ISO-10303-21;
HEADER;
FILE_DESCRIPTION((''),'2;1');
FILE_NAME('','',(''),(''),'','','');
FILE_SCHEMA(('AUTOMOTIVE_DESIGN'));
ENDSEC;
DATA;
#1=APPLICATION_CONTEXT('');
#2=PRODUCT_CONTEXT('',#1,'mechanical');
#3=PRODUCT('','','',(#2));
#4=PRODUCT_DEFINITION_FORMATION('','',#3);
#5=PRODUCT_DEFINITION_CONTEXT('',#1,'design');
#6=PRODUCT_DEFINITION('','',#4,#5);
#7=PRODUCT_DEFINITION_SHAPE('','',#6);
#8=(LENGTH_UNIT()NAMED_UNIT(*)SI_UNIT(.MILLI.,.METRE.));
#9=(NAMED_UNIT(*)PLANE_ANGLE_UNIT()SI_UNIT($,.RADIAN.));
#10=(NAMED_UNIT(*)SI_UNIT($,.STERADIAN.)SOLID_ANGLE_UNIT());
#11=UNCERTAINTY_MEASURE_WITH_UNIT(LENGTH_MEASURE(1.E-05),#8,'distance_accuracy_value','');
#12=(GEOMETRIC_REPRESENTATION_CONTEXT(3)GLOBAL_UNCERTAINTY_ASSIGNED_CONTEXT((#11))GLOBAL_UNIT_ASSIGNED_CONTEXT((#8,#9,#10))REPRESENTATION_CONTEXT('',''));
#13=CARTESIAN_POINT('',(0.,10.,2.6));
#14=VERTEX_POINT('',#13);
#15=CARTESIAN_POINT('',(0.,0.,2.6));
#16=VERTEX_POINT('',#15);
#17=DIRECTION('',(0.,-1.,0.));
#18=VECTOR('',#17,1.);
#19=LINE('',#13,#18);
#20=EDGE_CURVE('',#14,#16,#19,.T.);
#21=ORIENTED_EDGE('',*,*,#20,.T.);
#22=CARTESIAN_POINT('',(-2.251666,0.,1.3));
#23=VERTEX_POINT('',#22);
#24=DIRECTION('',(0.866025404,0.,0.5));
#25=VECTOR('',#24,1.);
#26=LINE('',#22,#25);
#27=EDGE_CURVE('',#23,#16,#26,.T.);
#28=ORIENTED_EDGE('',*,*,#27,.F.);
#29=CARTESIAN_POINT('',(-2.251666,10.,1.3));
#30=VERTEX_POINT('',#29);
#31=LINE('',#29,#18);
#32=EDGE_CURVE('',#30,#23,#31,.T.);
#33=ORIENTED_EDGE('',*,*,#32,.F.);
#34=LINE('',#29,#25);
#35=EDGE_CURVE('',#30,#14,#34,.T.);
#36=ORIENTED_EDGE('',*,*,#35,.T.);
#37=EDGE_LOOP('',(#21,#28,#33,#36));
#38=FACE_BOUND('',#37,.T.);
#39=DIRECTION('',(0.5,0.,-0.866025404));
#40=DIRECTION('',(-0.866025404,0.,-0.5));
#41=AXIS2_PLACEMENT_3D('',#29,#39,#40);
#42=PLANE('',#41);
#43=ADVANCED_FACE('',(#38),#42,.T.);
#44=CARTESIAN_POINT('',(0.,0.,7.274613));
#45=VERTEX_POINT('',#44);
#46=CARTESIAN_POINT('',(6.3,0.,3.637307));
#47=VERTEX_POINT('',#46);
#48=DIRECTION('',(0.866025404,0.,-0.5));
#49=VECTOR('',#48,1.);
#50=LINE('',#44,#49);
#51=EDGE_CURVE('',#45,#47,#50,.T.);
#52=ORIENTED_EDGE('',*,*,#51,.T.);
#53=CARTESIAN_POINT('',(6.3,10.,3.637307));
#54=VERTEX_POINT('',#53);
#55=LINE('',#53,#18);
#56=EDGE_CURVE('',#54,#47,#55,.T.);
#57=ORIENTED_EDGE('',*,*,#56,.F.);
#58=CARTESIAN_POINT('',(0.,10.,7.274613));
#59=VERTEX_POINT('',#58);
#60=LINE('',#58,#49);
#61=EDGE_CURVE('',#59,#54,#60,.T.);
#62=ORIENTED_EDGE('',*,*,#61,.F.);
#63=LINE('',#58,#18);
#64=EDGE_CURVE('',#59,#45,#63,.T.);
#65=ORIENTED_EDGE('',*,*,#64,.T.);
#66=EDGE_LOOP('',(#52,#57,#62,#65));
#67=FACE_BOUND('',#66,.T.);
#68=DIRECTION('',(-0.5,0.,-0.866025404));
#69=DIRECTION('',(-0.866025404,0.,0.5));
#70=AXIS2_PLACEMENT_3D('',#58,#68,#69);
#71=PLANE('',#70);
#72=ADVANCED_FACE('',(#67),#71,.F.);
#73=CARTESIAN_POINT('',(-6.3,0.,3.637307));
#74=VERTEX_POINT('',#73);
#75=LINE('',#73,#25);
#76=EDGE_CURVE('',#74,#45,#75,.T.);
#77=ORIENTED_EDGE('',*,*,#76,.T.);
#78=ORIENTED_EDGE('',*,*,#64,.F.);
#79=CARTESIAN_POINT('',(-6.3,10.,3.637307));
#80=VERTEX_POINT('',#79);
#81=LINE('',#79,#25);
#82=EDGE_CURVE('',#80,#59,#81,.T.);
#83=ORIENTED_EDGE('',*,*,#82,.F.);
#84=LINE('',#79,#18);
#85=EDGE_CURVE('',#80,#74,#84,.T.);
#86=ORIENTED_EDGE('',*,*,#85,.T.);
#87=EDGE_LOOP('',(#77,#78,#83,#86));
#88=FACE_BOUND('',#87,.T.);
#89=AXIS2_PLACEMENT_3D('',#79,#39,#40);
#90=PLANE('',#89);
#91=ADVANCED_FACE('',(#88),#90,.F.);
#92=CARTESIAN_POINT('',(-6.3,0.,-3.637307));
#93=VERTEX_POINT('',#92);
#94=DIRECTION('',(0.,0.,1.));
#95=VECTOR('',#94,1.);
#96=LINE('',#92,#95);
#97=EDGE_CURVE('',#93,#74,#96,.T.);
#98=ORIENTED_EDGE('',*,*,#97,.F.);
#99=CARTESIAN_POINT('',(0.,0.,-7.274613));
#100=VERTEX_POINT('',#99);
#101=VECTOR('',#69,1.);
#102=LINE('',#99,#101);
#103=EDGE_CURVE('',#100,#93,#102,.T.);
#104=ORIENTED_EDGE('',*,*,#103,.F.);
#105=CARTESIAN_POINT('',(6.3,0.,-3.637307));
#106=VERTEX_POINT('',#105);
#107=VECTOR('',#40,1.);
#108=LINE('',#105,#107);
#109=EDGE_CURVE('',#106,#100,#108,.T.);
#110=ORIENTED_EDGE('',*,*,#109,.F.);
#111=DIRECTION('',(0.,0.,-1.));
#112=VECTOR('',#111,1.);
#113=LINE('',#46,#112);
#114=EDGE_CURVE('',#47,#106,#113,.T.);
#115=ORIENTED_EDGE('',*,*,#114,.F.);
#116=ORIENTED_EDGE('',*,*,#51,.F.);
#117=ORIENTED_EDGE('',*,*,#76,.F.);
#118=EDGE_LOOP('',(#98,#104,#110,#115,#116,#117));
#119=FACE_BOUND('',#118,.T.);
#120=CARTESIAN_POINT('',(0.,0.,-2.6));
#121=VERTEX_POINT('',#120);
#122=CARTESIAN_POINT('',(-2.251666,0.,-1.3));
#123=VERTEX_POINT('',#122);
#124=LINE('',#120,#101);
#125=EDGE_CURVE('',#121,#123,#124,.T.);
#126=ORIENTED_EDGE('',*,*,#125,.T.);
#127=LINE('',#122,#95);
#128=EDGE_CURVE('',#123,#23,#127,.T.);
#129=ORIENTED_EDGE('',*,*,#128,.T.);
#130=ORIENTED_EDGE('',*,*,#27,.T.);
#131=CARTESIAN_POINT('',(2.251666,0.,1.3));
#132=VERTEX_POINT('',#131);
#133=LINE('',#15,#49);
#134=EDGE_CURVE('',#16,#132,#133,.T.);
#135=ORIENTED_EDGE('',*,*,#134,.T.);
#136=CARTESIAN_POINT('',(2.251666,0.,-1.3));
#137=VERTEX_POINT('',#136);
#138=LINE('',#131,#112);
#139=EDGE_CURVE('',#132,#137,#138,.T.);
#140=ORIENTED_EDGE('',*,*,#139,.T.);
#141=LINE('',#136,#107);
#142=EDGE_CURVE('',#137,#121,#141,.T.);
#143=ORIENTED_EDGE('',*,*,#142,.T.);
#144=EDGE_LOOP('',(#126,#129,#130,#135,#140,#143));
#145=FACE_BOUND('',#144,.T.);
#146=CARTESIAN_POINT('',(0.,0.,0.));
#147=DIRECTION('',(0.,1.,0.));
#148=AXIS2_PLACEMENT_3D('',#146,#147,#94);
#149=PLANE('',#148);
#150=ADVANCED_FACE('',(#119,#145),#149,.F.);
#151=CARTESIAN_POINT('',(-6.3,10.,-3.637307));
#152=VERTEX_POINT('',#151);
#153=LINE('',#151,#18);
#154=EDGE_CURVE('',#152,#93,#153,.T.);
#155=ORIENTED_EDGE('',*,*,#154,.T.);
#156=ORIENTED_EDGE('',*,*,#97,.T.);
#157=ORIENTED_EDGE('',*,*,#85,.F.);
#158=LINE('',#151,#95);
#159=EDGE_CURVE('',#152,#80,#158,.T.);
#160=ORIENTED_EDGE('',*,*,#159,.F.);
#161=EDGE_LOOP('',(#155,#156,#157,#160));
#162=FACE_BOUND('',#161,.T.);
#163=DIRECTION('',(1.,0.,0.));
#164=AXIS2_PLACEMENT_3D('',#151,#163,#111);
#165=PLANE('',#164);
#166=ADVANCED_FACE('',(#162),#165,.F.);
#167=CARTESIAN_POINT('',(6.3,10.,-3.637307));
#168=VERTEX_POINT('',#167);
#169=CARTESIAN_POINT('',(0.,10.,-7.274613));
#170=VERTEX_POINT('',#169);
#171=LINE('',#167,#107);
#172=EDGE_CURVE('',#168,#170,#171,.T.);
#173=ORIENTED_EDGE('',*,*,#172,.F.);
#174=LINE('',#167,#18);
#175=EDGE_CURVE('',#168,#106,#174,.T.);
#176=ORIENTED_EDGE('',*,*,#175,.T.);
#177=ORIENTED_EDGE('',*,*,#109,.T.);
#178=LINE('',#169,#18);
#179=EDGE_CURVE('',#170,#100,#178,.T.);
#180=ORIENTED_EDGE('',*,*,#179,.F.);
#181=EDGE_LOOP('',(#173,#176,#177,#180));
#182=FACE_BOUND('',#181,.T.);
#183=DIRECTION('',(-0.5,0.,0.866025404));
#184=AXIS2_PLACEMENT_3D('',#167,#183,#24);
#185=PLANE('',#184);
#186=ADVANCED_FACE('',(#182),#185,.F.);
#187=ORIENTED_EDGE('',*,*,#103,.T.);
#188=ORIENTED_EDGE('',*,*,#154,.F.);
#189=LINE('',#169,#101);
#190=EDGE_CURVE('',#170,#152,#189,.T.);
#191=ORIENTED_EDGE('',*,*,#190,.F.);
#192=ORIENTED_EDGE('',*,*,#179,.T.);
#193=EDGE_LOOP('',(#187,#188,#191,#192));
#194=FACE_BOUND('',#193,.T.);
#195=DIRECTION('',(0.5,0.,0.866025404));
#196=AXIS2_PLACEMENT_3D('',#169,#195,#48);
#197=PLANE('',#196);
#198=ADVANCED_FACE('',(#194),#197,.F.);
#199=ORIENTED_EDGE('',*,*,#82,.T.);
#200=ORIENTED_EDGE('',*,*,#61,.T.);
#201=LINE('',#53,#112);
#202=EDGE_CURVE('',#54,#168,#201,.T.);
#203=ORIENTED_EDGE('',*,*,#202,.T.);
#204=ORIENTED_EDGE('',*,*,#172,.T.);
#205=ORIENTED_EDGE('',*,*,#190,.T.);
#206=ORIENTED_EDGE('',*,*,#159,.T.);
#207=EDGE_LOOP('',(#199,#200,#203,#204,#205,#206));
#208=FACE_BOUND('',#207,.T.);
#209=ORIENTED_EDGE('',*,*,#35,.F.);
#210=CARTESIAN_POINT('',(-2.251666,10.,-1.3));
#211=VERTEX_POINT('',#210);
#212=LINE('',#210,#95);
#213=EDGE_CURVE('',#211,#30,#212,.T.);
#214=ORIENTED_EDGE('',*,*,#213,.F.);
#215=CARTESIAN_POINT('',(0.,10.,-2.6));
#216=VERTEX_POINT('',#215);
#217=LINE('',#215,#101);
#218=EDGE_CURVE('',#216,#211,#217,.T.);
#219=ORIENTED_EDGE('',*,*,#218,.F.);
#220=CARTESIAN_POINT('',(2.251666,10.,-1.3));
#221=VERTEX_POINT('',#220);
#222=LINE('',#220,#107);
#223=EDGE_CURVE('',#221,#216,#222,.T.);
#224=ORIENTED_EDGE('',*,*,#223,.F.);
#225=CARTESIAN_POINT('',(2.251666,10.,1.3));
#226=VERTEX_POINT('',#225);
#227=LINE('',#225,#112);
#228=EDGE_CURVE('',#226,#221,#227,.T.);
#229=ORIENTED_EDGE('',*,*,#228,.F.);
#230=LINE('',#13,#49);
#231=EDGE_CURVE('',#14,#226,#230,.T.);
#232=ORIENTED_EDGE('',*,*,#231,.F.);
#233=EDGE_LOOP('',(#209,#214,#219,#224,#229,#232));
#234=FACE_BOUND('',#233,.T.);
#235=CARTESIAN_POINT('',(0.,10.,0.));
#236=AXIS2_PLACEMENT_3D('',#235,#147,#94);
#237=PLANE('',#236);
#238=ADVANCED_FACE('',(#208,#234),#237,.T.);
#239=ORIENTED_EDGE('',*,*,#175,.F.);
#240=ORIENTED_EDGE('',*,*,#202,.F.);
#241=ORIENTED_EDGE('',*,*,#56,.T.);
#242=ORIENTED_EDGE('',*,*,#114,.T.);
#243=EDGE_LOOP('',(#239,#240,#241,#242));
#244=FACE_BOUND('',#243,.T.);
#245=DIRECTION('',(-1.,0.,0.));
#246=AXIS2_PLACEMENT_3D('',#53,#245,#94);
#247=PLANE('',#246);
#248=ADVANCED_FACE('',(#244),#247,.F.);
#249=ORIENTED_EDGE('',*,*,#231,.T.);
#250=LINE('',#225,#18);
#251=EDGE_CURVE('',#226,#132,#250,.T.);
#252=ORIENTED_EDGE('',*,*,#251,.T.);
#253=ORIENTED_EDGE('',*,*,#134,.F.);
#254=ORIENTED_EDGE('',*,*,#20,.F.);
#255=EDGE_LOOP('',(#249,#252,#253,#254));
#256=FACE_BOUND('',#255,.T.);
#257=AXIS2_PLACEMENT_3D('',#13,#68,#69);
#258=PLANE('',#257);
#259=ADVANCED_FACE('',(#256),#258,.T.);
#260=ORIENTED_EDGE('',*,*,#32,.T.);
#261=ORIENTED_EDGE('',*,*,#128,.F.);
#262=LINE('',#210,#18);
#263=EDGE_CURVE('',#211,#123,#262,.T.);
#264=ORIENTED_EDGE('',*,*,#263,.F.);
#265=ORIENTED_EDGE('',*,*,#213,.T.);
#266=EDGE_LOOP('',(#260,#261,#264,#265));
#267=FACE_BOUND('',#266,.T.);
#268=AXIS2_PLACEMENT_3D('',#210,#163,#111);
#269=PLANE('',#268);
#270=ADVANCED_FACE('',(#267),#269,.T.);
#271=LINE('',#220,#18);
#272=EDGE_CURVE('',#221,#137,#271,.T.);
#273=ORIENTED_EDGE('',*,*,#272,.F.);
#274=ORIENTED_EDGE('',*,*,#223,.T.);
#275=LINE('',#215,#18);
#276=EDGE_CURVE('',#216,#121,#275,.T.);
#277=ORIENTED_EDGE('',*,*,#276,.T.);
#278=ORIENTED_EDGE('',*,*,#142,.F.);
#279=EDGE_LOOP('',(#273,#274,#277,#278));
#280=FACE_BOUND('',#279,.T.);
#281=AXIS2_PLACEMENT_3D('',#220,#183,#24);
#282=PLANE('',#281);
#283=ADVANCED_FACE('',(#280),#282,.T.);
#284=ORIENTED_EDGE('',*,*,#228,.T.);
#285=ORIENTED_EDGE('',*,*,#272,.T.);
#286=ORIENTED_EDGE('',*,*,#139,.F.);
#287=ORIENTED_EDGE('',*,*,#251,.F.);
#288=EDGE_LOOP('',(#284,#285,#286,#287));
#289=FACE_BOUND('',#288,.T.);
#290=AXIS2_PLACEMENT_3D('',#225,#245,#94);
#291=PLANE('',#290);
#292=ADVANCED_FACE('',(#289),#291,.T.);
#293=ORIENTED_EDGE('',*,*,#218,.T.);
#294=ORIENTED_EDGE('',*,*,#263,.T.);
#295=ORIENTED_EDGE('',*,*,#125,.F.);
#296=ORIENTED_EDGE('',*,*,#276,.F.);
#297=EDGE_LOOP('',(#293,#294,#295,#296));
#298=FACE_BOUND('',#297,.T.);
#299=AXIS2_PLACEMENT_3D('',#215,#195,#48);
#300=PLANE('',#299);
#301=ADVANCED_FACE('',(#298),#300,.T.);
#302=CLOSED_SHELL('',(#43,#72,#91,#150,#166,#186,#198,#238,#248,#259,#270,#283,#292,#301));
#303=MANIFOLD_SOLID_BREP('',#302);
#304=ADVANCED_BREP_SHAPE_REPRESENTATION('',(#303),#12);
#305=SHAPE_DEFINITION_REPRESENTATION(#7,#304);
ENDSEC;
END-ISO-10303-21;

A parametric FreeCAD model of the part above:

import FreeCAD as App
import Part
import Sketcher
Q = App.Units.Quantity


def add_polygon(sketch, points):
    """Adds a closed chain of lines whose ends are joined by coincident constraints."""
    first, n = sketch.GeometryCount, len(points)
    for a, b in zip(points, points[1:] + points[:1]):
        sketch.addGeometry(Part.LineSegment(App.Vector(*a, 0), App.Vector(*b, 0)), False)
    for i in range(n):
        sketch.addConstraint(Sketcher.Constraint("Coincident", first + i, 2, first + (i + 1) % n, 1))

doc = App.newDocument("Part")
params = doc.addObject("Spreadsheet::Sheet", "Params")
for row, (alias, value) in enumerate([
    ("sketch1_height", "2.6 mm"),
    ("sketch1_length", "2.6 mm"),
    ("pad1_length", "10 mm"),
], start=1):
    params.set(f"A{row}", alias)
    params.set(f"B{row}", "=" + value)
    params.setAlias(f"B{row}", alias)

body = doc.addObject("PartDesign::Body", "Body")

# Sketch on XZ plane
sketch1 = doc.addObject("Sketcher::SketchObject", "Sketch")
body.addObject(sketch1)
sketch1.AttachmentSupport = (doc.XZ_Plane, [""])
sketch1.MapMode = "FlatFace"
add_polygon(sketch1, [(0, -7.274613), (-6.3, -3.637307), (-6.3, 3.637307), (0, 7.274613), (6.3, 3.637307), (6.3, -3.637307)])  # lines 0-5
add_polygon(sketch1, [(-2.251666, -1.3), (0, -2.6), (2.251666, -1.3), (2.251666, 1.3), (0, 2.6), (-2.251666, 1.3)])  # lines 6-11
sketch1.addConstraint([
    Sketcher.Constraint("Vertical", 1),
    Sketcher.Constraint("Vertical", 4),
    Sketcher.Constraint("Vertical", 8),
    Sketcher.Constraint("Vertical", 11),
    Sketcher.Constraint("Symmetric", 0, 2, 3, 2, -1, 1),
    Sketcher.Constraint("Symmetric", 2, 2, 5, 2, -1, 1),
    Sketcher.Constraint("Symmetric", 6, 2, 9, 2, -1, 1),
    Sketcher.Constraint("Symmetric", 7, 2, 10, 2, -1, 1),
    Sketcher.Constraint("PointOnObject", 2, 2, -2),
    Sketcher.Constraint("PointOnObject", 6, 2, -2),
    Sketcher.Constraint("Parallel", 2, 5),
    Sketcher.Constraint("Parallel", 3, 6),
    Sketcher.Constraint("Parallel", 5, 7),
    Sketcher.Constraint("Parallel", 6, 9),
    Sketcher.Constraint("Horizontal", 1, 2, 3, 2),
    Sketcher.Constraint("Angle", 0, Q("150 deg")),
    Sketcher.Constraint("DistanceY", 8, 1, 8, 2, Q("2.6 mm")),
    Sketcher.Constraint("Distance", 6, Q("2.6 mm")),
    Sketcher.Constraint("DistanceX", 0, 2, -1, 1, Q("6.3 mm")),
    Sketcher.Constraint("DistanceY", 1, 1, 1, 2, Q("7.274613 mm")),
])
sketch1.setExpression("Constraints[28]", "Params.sketch1_height")
sketch1.setExpression("Constraints[29]", "Params.sketch1_length")
pad1 = doc.addObject("PartDesign::Pad", "Pad")
body.addObject(pad1)
pad1.Profile = sketch1
pad1.setExpression("Length", "Params.pad1_length")
pad1.Reversed = True

doc.recompute()
